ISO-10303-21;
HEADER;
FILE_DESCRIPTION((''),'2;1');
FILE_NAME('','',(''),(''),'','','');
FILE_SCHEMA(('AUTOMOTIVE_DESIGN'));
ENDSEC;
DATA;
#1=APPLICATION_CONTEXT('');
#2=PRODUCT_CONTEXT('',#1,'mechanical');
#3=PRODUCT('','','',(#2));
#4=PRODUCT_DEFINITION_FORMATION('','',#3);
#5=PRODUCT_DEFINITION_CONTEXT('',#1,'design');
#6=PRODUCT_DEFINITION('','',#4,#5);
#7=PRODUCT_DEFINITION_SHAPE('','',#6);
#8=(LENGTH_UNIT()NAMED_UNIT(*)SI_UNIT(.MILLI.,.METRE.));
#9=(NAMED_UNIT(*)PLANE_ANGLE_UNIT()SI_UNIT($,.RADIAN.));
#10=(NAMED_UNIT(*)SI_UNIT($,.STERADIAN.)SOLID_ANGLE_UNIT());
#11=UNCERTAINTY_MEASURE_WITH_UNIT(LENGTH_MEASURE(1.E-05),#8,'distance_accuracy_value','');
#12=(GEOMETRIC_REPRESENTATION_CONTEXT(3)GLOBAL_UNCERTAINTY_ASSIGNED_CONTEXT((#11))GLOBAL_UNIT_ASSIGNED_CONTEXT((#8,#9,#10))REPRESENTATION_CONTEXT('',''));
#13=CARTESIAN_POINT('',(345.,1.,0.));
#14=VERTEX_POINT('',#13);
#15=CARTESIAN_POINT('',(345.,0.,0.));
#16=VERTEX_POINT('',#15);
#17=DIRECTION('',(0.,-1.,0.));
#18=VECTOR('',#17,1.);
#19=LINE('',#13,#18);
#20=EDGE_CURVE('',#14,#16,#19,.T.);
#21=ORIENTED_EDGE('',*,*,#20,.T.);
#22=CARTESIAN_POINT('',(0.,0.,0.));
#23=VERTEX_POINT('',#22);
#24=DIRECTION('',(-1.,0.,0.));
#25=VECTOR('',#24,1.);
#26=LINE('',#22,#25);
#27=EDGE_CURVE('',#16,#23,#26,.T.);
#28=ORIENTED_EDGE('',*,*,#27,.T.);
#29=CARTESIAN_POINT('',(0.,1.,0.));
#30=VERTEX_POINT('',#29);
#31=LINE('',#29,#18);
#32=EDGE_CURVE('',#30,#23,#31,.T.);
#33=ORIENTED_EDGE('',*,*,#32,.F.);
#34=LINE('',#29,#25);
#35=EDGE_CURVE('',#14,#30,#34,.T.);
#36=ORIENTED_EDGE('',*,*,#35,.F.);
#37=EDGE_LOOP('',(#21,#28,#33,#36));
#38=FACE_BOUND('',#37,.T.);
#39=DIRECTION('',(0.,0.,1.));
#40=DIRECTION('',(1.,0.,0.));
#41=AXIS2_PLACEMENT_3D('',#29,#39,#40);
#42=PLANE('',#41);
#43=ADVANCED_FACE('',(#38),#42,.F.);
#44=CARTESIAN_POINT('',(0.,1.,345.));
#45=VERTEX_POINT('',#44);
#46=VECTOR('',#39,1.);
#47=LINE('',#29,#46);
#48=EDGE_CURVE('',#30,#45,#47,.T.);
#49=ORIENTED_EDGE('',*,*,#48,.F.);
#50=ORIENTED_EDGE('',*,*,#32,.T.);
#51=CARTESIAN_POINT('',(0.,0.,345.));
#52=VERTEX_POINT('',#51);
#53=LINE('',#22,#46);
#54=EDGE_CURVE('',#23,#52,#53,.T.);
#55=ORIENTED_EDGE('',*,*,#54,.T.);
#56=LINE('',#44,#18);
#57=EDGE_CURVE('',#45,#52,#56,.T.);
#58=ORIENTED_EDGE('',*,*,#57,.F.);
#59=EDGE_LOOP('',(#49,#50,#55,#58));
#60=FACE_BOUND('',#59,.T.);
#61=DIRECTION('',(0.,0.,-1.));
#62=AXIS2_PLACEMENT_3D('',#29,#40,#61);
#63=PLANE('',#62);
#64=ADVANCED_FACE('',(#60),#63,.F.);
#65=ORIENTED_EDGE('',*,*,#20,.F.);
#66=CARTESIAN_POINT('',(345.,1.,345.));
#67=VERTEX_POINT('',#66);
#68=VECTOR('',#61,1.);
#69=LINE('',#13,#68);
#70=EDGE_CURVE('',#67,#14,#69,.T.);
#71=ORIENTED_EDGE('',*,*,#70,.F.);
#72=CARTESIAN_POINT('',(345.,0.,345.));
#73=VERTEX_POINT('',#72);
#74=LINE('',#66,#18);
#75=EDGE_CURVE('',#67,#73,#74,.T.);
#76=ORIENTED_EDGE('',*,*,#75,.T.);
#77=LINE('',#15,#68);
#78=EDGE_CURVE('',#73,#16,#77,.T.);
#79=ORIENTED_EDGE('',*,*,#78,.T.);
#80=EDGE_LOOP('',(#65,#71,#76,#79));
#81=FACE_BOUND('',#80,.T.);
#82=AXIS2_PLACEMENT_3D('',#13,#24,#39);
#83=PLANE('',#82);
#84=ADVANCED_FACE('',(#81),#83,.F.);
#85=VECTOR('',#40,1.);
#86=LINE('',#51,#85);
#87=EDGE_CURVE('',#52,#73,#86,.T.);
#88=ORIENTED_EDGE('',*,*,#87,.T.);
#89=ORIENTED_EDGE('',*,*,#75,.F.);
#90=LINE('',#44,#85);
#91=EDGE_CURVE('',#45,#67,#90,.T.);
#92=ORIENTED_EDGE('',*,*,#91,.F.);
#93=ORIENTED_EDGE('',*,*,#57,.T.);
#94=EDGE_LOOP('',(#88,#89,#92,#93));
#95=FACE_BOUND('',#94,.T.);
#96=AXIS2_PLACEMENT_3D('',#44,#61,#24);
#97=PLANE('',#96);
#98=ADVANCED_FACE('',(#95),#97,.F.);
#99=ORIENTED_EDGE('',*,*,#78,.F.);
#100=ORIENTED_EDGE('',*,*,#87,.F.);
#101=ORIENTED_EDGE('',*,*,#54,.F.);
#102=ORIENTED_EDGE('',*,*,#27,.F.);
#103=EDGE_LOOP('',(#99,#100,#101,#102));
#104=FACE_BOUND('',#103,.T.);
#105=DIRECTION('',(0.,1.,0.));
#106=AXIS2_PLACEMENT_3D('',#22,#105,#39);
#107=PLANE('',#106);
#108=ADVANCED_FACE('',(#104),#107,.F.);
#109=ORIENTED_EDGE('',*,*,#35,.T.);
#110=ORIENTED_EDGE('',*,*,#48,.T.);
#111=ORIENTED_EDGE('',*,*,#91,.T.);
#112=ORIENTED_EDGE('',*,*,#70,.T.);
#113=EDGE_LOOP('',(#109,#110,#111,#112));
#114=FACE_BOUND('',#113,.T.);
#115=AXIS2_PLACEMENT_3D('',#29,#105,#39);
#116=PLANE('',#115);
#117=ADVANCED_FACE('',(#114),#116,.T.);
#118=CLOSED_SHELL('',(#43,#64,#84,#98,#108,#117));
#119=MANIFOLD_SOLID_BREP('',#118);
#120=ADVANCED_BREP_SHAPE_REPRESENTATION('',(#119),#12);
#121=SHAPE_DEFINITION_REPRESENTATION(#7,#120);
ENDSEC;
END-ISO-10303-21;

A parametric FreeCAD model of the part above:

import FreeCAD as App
import Part
import Sketcher
from FreeCAD import Vector

doc = App.newDocument("Part")
body = doc.addObject("PartDesign::Body", "Body")

sketch1 = body.newObject("Sketcher::SketchObject", "Sketch")
sketch1.AttachmentSupport = (doc.getObject("XZ_Plane"), [""])
sketch1.MapMode = "FlatFace"
sketch1.addGeometry(Part.LineSegment(Vector(0, 0, 0), Vector(0, 345, 0)), False)
sketch1.addGeometry(Part.LineSegment(Vector(0, 345, 0), Vector(345, 345, 0)), False)
sketch1.addGeometry(Part.LineSegment(Vector(345, 345, 0), Vector(345, 0, 0)), False)
sketch1.addGeometry(Part.LineSegment(Vector(345, 0, 0), Vector(0, 0, 0)), False)
sketch1.addConstraint(Sketcher.Constraint("Coincident", 0, 2, 1, 1))
sketch1.addConstraint(Sketcher.Constraint("Coincident", 1, 2, 2, 1))
sketch1.addConstraint(Sketcher.Constraint("Coincident", 2, 2, 3, 1))
sketch1.addConstraint(Sketcher.Constraint("Coincident", 3, 2, 0, 1))
sketch1.addConstraint(Sketcher.Constraint("Vertical", 0))
sketch1.addConstraint(Sketcher.Constraint("Horizontal", 1))
sketch1.addConstraint(Sketcher.Constraint("Vertical", 2))
sketch1.addConstraint(Sketcher.Constraint("Horizontal", 3))
sketch1.addConstraint(Sketcher.Constraint("Coincident", 3, 2, -1, 1))
sketch1.addConstraint(Sketcher.Constraint("Equal", 3, 0))
sketch1.addConstraint(Sketcher.Constraint("DistanceX", 1, 1, 1, 2, 345.0))
pad1 = body.newObject("PartDesign::Pad", "Pad")
pad1.Profile = sketch1
pad1.Length = 1
pad1.Reversed = True

doc.recompute()
